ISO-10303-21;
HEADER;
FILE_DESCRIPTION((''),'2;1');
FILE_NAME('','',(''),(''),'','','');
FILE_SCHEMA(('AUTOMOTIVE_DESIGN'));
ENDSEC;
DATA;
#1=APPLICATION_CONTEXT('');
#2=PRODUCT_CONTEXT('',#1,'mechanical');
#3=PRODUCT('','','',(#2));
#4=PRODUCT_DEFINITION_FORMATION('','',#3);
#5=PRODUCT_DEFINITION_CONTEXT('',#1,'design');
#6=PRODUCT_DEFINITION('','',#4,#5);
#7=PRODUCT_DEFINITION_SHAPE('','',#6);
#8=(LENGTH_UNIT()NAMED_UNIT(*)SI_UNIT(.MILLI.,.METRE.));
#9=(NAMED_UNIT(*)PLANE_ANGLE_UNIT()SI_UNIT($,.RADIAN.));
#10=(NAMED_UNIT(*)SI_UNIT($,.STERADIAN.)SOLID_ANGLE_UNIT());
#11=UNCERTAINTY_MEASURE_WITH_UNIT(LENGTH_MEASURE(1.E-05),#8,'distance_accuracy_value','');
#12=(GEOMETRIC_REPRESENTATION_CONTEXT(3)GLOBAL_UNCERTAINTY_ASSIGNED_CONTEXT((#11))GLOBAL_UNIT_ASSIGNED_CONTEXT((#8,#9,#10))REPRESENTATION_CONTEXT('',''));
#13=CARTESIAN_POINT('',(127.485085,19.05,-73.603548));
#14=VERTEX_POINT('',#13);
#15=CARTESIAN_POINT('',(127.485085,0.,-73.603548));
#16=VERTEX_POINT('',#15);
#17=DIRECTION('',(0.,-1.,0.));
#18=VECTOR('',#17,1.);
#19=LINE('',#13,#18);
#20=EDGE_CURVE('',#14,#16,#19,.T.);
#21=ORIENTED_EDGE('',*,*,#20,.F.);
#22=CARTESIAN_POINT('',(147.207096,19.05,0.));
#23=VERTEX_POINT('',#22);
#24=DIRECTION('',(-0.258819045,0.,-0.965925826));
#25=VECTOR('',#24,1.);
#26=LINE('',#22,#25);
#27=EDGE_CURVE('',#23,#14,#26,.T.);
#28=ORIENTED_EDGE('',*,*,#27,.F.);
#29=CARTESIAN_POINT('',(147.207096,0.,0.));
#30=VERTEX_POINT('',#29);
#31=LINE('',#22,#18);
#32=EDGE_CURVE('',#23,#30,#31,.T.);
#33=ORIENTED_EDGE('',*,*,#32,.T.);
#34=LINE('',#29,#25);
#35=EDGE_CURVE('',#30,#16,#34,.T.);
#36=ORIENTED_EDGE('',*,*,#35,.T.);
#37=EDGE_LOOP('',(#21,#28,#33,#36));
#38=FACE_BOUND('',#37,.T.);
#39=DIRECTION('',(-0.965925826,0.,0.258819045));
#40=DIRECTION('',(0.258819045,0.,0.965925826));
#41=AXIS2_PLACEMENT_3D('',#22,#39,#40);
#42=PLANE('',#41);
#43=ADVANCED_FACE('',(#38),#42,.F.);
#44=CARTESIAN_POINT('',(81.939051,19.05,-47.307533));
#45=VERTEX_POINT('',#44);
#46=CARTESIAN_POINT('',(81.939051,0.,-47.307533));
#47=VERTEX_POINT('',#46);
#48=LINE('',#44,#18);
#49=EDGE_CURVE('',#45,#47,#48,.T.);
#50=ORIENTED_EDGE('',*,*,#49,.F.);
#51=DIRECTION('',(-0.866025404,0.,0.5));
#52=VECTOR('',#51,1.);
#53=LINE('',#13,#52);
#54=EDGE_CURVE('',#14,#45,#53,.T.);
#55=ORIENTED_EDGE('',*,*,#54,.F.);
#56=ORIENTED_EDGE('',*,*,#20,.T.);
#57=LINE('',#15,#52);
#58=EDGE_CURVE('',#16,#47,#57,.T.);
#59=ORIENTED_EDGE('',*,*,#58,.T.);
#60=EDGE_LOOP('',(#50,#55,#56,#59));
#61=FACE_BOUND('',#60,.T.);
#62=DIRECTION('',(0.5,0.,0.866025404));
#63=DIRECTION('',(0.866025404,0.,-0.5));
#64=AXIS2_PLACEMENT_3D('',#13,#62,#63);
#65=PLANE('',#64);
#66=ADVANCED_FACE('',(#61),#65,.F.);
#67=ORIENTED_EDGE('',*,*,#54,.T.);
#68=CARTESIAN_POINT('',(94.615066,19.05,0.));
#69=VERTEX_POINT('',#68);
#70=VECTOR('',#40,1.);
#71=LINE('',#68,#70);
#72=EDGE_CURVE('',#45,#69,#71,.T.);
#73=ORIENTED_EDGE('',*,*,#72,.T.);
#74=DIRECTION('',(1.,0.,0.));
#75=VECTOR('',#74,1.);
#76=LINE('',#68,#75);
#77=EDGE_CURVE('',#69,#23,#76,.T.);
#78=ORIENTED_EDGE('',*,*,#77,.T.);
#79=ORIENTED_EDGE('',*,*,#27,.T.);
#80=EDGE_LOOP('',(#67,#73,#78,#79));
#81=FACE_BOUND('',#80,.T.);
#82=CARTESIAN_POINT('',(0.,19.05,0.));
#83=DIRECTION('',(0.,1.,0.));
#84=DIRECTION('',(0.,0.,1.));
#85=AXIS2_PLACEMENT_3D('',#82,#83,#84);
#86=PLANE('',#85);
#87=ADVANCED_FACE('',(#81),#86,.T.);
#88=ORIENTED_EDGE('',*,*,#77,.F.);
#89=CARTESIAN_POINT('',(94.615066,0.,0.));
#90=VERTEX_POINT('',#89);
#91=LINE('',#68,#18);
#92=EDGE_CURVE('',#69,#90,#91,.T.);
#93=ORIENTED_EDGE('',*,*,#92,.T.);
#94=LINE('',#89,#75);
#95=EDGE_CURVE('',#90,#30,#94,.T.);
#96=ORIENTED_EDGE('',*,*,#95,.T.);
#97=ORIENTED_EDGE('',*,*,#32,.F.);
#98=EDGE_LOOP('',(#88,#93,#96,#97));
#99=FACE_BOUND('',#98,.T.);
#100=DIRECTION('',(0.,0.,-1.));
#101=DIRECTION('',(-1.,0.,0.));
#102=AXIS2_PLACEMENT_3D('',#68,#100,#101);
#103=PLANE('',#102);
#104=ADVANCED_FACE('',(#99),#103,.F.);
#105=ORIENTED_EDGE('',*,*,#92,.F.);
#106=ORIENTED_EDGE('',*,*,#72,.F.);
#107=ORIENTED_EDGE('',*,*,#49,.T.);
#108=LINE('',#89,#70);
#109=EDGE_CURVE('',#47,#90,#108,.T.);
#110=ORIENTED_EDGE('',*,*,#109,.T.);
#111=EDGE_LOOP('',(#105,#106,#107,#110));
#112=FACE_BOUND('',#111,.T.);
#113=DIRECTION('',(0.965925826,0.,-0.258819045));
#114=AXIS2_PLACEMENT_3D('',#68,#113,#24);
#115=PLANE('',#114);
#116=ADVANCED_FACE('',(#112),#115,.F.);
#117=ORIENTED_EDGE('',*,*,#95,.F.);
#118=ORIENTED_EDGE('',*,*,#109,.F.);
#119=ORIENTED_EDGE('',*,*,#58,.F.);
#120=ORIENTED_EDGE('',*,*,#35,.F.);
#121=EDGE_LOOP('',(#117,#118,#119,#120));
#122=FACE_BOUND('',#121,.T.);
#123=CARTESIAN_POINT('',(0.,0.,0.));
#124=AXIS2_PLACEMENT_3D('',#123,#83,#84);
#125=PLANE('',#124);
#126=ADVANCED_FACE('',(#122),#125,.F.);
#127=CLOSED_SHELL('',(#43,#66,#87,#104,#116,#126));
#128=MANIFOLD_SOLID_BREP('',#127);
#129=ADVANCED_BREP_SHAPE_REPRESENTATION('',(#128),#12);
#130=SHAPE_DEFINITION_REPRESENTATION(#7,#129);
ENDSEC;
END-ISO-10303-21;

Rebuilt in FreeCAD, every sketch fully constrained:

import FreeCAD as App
import Part
import Sketcher

V = App.Vector
Q = App.Units.Quantity

doc = App.newDocument("Part")
body = doc.addObject("PartDesign::Body", "Body")

sketch1 = body.newObject("Sketcher::SketchObject", "Sketch")
sketch1.AttachmentSupport = (doc.getObject("XZ_Plane"), [""])
sketch1.MapMode = "FlatFace"
sketch1.addGeometry(Part.LineSegment(V(147, 0, 0), V(127, -74, 0)), False)
sketch1.addGeometry(Part.LineSegment(V(127, -74, 0), V(82, -47, 0)), False)
sketch1.addGeometry(Part.LineSegment(V(82, -47, 0), V(95, 0, 0)), False)
sketch1.addGeometry(Part.LineSegment(V(95, 0, 0), V(147, 0, 0)), False)
sketch1.addConstraint(Sketcher.Constraint("Coincident", 0, 2, 1, 1))
sketch1.addConstraint(Sketcher.Constraint("Coincident", 1, 2, 2, 1))
sketch1.addConstraint(Sketcher.Constraint("Coincident", 2, 2, 3, 1))
sketch1.addConstraint(Sketcher.Constraint("Coincident", 3, 2, 0, 1))
sketch1.addConstraint(Sketcher.Constraint("Horizontal", 3))
sketch1.addConstraint(Sketcher.Constraint("PointOnObject", 2, 2, -1))
sketch1.addConstraint(Sketcher.Constraint("Parallel", 0, 2))
sketch1.addConstraint(Sketcher.Constraint("Distance", 0, Q("3 in")))
sketch1.addConstraint(Sketcher.Constraint("Angle", 0, Q("-105 deg")))
sketch1.addConstraint(Sketcher.Constraint("Angle", 1, Q("150 deg")))
sketch1.addConstraint(Sketcher.Constraint("DistanceX", 3, 1, 3, 2, Q("52.59203 mm")))
sketch1.addConstraint(Sketcher.Constraint("DistanceX", -1, 1, 1, 2, Q("81.939051 mm")))
pad1 = body.newObject("PartDesign::Pad", "Pad")
pad1.Profile = sketch1
pad1.Length = Q("0.75 in")
pad1.Reversed = True

doc.recompute()
